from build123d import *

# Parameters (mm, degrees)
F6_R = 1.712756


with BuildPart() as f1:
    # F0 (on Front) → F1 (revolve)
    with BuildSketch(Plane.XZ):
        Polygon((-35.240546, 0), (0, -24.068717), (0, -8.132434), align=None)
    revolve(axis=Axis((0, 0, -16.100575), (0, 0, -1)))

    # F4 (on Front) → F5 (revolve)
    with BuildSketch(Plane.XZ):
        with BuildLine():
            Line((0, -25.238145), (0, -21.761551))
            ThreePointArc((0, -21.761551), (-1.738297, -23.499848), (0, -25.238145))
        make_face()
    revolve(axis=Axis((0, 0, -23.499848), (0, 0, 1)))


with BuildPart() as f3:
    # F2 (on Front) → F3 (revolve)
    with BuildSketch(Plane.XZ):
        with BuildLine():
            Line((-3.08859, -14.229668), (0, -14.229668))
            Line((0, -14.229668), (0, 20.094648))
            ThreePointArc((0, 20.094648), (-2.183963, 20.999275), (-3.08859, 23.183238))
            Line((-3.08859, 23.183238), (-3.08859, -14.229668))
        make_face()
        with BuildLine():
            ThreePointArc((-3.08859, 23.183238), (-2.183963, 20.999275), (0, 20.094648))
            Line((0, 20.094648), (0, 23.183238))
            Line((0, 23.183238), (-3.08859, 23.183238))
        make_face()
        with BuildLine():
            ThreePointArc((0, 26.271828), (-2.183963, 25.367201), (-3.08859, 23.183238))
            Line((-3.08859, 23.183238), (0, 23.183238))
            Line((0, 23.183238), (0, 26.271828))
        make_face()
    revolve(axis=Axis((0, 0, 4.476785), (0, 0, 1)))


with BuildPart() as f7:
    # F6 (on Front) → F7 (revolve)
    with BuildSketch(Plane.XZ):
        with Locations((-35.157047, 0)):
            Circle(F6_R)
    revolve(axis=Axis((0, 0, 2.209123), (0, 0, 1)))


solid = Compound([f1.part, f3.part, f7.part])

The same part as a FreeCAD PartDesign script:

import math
import FreeCAD as App
import Part
import Sketcher

V = App.Vector
Q = App.Units.Quantity

doc = App.newDocument("Part")
body = doc.addObject("PartDesign::Body", "Body")

# Sketch on XZ plane
sketch1 = body.newObject("Sketcher::SketchObject", "Sketch")
sketch1.AttachmentSupport = (doc.getObject("XZ_Plane"), [""])
sketch1.MapMode = "FlatFace"
sketch1.addGeometry([
    Part.LineSegment(V(-35, 0, 0), V(0, -24, 0)),
    Part.LineSegment(V(0, -24, 0), V(0, -8, 0)),
    Part.LineSegment(V(0, -8, 0), V(-35, 0, 0)),
], False)
sketch1.addConstraint([
    Sketcher.Constraint("Coincident", 0, 2, 1, 1),
    Sketcher.Constraint("Coincident", 1, 2, 2, 1),
    Sketcher.Constraint("Coincident", 2, 2, 0, 1),
    Sketcher.Constraint("Vertical", 1),
    Sketcher.Constraint("PointOnObject", 0, 2, -2),
    Sketcher.Constraint("PointOnObject", 2, 2, -1),
    Sketcher.Constraint("Distance", 0, Q("42.675511 mm")),
    Sketcher.Constraint("DistanceY", 1, 1, 1, 2, Q("15.936283 mm")),
    Sketcher.Constraint("Distance", 2, Q("36.166733 mm")),
])
revolution = body.newObject("PartDesign::Revolution", "Revolution")
revolution.Profile = sketch1
revolution.ReferenceAxis = (sketch1, ["V_Axis"])
revolution.Angle = 360

# Sketch on XZ plane
sketch2 = body.newObject("Sketcher::SketchObject", "Sketch001")
sketch2.AttachmentSupport = (doc.getObject("XZ_Plane"), [""])
sketch2.MapMode = "FlatFace"
sketch2.addGeometry([
    Part.LineSegment(V(0, -25.2, 0), V(0, -21.8, 0)),
    Part.ArcOfCircle(Part.Circle(V(0, -23.5, 0), V(0, 0, 1), 1.7), math.radians(90), math.radians(270)),
], False)
sketch2.addConstraint([
    Sketcher.Constraint("Coincident", 0, 1, 1, 2),
    Sketcher.Constraint("Coincident", 1, 1, 0, 2),
    Sketcher.Constraint("Vertical", 0),
    Sketcher.Constraint("PointOnObject", 1, 3, -2),
    Sketcher.Constraint("PointOnObject", 0, 1, -2),
    Sketcher.Constraint("Radius", 1, Q("1.738297 mm")),
    Sketcher.Constraint("DistanceY", 1, 3, -1, 1, Q("23.499848 mm")),
])
revolution2 = body.newObject("PartDesign::Revolution", "Revolution001")
revolution2.Profile = sketch2
revolution2.ReferenceAxis = (sketch2, ["V_Axis"])
revolution2.Angle = 360
body2 = doc.addObject("PartDesign::Body", "Body001")

# Sketch on XZ plane
sketch3 = body2.newObject("Sketcher::SketchObject", "Sketch002")
sketch3.AttachmentSupport = (doc.getObject("XZ_Plane001"), [""])
sketch3.MapMode = "FlatFace"
sketch3.addGeometry([
    Part.LineSegment(V(-3.1, -14.2, 0), V(0, -14.2, 0)),
    Part.LineSegment(V(0, -14.2, 0), V(0, 26.3, 0)),
    Part.ArcOfCircle(Part.Circle(V(0, 23.2, 0), V(0, 0, 1), 3.1), math.radians(90), math.radians(180)),
    Part.LineSegment(V(-3.1, 23.2, 0), V(-3.1, -14.2, 0)),
], False)
sketch3.addConstraint([
    Sketcher.Constraint("Coincident", 0, 2, 1, 1),
    Sketcher.Constraint("Coincident", 1, 2, 2, 1),
    Sketcher.Constraint("Tangent", 2, 2, 3, 1),
    Sketcher.Constraint("Coincident", 3, 2, 0, 1),
    Sketcher.Constraint("Horizontal", 0),
    Sketcher.Constraint("Vertical", 1),
    Sketcher.Constraint("Vertical", 3),
    Sketcher.Constraint("PointOnObject", 2, 3, -2),
    Sketcher.Constraint("PointOnObject", 0, 2, -2),
    Sketcher.Constraint("Radius", 2, Q("3.08859 mm")),
    Sketcher.Constraint("DistanceY", 1, 1, 1, 2, Q("40.501496 mm")),
    Sketcher.Constraint("DistanceY", -1, 1, 2, 3, Q("23.183238 mm")),
])
revolution3 = body2.newObject("PartDesign::Revolution", "Revolution002")
revolution3.Profile = sketch3
revolution3.ReferenceAxis = (sketch3, ["V_Axis"])
revolution3.Angle = 360
body3 = doc.addObject("PartDesign::Body", "Body002")

# Sketch on XZ plane
sketch4 = body3.newObject("Sketcher::SketchObject", "Sketch003")
sketch4.AttachmentSupport = (doc.getObject("XZ_Plane002"), [""])
sketch4.MapMode = "FlatFace"
sketch4.addGeometry(Part.Circle(V(-35.2, 0, 0), V(0, 0, 1), 1.7), False)
sketch4.addConstraint([
    Sketcher.Constraint("PointOnObject", 0, 3, -1),
    Sketcher.Constraint("Diameter", 0, Q("3.425512 mm")),
    Sketcher.Constraint("DistanceX", 0, 3, -1, 1, Q("35.157047 mm")),
])
revolution4 = body3.newObject("PartDesign::Revolution", "Revolution003")
revolution4.Profile = sketch4
revolution4.ReferenceAxis = (sketch4, ["V_Axis"])
revolution4.Angle = 360

doc.recompute()
